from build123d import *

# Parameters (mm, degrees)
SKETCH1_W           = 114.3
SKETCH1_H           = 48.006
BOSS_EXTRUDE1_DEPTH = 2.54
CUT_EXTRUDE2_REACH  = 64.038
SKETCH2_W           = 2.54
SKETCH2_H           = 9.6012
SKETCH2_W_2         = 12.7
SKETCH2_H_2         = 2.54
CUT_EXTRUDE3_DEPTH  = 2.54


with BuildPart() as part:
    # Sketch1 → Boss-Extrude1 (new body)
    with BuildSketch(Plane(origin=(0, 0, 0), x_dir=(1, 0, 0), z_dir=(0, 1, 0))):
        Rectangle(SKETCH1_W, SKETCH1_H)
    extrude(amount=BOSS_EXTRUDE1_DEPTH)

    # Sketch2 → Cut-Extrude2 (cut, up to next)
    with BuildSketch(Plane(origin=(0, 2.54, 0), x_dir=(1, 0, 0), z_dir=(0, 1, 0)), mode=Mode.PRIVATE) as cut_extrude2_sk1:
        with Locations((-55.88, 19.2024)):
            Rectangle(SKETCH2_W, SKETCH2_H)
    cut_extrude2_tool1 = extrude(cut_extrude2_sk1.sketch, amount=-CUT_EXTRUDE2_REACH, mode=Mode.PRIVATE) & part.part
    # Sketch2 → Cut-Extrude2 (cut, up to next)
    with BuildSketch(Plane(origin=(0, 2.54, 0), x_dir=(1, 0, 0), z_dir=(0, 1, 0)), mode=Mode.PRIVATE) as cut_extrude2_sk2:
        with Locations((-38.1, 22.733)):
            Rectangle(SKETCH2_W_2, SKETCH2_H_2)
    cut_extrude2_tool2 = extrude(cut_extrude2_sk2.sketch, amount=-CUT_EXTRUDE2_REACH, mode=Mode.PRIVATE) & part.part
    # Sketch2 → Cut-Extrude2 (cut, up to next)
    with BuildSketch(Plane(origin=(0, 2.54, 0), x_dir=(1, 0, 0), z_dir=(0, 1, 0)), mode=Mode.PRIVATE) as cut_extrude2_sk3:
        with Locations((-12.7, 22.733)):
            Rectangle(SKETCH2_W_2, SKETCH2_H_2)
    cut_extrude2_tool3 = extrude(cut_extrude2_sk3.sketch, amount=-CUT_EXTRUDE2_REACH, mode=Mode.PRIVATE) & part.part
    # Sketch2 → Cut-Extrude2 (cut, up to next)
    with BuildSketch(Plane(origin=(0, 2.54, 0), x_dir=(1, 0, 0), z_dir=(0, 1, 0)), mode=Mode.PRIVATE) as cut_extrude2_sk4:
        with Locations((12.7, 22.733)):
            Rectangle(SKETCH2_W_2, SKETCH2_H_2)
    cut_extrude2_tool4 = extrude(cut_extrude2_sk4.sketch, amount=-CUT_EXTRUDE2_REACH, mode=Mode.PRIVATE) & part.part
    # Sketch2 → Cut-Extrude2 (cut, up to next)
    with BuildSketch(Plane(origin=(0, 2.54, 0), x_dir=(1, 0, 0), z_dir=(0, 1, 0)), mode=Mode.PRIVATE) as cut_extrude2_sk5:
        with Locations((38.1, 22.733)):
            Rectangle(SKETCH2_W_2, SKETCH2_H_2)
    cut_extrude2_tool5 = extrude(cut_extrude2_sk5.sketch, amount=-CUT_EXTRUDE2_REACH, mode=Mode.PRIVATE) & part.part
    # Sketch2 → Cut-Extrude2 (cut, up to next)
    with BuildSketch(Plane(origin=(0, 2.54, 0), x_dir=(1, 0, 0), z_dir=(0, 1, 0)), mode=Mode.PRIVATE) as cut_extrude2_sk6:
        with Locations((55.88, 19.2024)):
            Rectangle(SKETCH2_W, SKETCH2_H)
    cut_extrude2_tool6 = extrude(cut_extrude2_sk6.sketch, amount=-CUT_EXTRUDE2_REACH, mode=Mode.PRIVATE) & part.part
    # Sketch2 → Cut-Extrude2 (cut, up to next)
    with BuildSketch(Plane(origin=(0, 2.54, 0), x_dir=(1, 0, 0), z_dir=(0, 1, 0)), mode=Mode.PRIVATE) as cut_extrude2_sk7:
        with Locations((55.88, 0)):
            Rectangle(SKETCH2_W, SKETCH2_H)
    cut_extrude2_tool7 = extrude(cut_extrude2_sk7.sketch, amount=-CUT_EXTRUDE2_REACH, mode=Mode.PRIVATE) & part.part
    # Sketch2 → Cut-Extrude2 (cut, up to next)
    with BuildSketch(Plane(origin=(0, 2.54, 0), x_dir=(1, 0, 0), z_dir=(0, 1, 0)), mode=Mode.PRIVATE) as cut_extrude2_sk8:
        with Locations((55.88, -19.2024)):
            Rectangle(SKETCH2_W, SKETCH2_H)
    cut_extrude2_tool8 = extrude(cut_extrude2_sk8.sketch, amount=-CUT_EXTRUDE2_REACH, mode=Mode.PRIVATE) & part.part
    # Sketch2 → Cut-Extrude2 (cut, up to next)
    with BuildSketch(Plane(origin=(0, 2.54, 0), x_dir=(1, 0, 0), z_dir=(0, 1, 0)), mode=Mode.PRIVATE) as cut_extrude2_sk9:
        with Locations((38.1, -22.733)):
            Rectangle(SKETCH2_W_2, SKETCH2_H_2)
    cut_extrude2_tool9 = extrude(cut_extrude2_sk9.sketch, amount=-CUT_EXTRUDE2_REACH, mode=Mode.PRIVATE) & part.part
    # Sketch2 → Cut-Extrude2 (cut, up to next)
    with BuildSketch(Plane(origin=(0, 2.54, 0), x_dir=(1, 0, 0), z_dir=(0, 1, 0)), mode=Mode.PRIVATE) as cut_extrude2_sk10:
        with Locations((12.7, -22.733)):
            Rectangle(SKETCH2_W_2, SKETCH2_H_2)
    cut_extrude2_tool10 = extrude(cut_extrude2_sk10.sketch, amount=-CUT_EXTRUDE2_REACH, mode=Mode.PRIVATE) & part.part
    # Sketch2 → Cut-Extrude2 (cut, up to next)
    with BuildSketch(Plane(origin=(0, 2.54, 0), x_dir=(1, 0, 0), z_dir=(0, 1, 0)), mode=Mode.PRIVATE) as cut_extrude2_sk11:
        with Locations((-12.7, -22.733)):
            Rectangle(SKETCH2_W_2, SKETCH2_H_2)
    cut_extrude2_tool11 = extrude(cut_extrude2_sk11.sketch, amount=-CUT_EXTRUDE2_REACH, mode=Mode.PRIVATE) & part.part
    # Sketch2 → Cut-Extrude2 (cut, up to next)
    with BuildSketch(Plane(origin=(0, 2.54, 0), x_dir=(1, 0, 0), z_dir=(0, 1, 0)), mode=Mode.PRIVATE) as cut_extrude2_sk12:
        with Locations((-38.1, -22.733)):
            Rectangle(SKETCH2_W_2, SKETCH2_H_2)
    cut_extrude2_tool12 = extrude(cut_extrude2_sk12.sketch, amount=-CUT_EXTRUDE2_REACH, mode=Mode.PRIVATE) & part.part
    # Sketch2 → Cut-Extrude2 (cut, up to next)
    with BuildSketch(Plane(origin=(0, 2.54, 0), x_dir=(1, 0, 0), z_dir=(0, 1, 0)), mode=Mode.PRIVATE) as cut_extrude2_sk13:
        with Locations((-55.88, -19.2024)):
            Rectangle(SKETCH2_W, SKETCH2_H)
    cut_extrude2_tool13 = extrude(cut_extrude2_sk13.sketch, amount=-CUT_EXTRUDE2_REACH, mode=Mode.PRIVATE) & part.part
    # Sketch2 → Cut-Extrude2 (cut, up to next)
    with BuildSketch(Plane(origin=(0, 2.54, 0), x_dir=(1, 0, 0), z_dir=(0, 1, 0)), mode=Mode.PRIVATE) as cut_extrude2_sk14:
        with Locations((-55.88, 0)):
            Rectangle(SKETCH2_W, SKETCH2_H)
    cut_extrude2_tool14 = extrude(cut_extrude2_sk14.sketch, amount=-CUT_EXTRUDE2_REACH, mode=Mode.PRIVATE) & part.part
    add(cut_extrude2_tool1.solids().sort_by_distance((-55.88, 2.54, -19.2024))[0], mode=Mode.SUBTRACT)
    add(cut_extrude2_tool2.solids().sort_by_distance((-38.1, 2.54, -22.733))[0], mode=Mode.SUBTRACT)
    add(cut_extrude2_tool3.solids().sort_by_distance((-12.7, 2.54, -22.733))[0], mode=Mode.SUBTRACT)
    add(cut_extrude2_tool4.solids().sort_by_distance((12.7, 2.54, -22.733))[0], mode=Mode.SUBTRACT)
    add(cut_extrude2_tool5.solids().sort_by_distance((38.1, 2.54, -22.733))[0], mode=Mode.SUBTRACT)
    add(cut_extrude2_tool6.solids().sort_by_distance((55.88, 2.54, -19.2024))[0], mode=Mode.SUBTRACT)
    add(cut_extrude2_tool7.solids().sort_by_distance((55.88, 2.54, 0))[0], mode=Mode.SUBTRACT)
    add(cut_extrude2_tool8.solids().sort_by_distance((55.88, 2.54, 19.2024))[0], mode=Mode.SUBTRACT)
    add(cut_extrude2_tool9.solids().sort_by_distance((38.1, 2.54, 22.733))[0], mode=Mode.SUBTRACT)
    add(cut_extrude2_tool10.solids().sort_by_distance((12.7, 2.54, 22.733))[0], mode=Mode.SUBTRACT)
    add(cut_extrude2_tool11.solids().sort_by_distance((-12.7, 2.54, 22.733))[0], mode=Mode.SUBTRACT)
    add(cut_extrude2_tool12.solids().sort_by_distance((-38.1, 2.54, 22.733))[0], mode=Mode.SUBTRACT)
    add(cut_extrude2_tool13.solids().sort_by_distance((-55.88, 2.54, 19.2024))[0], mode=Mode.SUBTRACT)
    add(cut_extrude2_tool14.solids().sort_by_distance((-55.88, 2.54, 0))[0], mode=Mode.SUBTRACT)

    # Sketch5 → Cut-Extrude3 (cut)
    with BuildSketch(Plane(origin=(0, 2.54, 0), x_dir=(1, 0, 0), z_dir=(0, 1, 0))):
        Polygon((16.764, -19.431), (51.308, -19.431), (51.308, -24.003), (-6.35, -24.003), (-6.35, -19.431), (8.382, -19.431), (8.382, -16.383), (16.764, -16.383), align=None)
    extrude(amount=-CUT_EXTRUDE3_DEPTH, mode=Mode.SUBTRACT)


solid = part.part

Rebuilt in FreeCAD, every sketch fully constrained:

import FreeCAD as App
import Part
import Sketcher

V = App.Vector
Q = App.Units.Quantity

doc = App.newDocument("Part")
params = doc.addObject("Spreadsheet::Sheet", "Params")
for row, (alias, value) in enumerate([
    ("sketch1_width", "4.5 in"),
    ("sketch1_height", "1.89 in"),
    ("pad1_length", "0.1 in"),
    ("sketch2_width", "0.1 in"),
    ("sketch2_height", "0.378 in"),
    ("sketch3_width", "0.5 in"),
    ("sketch3_height", "0.1 in"),
    ("sketch4_width", "0.5 in"),
    ("sketch4_height", "0.1 in"),
    ("sketch5_width", "0.5 in"),
    ("sketch5_height", "0.1 in"),
    ("sketch6_width", "0.5 in"),
    ("sketch6_height", "0.1 in"),
    ("sketch7_width", "0.1 in"),
    ("sketch7_height", "0.378 in"),
    ("sketch8_width", "0.1 in"),
    ("sketch8_height", "0.378 in"),
    ("sketch9_width", "0.1 in"),
    ("sketch9_height", "0.378 in"),
    ("sketch10_width", "0.5 in"),
    ("sketch10_height", "0.1 in"),
    ("sketch11_width", "0.5 in"),
    ("sketch11_height", "0.1 in"),
    ("sketch12_width", "0.5 in"),
    ("sketch12_height", "0.1 in"),
    ("sketch13_width", "0.5 in"),
    ("sketch13_height", "0.1 in"),
    ("sketch14_width", "0.1 in"),
    ("sketch14_height", "0.378 in"),
    ("sketch15_width", "0.1 in"),
    ("sketch15_height", "0.378 in"),
    ("sketch16_width", "1.36 in"),
    ("sketch16_width2", "0.33 in"),
    ("sketch16_width3", "0.58 in"),
    ("sketch16_height", "0.12 in"),
    ("sketch16_height2", "0.18 in"),
    ("pocket15_length", "0.1 in"),
], start=1):
    params.set(f"A{row}", alias)
    params.set(f"B{row}", "=" + value)
    params.setAlias(f"B{row}", alias)

body = doc.addObject("PartDesign::Body", "Body")

# Sketch on XZ plane
sketch1 = body.newObject("Sketcher::SketchObject", "Sketch")
sketch1.AttachmentSupport = (doc.getObject("XZ_Plane"), [""])
sketch1.MapMode = "FlatFace"
sketch1.addGeometry(Part.LineSegment(V(-57, -24, 0), V(-57, 24, 0)), False)
sketch1.addGeometry(Part.LineSegment(V(-57, 24, 0), V(57, 24, 0)), False)
sketch1.addGeometry(Part.LineSegment(V(57, 24, 0), V(57, -24, 0)), False)
sketch1.addGeometry(Part.LineSegment(V(57, -24, 0), V(-57, -24, 0)), False)
sketch1.addConstraint(Sketcher.Constraint("Coincident", 0, 2, 1, 1))
sketch1.addConstraint(Sketcher.Constraint("Coincident", 1, 2, 2, 1))
sketch1.addConstraint(Sketcher.Constraint("Coincident", 2, 2, 3, 1))
sketch1.addConstraint(Sketcher.Constraint("Coincident", 3, 2, 0, 1))
sketch1.addConstraint(Sketcher.Constraint("Vertical", 0))
sketch1.addConstraint(Sketcher.Constraint("Horizontal", 1))
sketch1.addConstraint(Sketcher.Constraint("Vertical", 2))
sketch1.addConstraint(Sketcher.Constraint("Horizontal", 3))
sketch1.addConstraint(Sketcher.Constraint("Symmetric", 0, 2, 2, 2, -1, 1))
sketch1.addConstraint(Sketcher.Constraint("DistanceX", 1, 1, 1, 2, Q("4.5 in")))
sketch1.addConstraint(Sketcher.Constraint("DistanceY", 0, 1, 0, 2, Q("1.89 in")))
sketch1.setExpression("Constraints[9]", "Params.sketch1_width")
sketch1.setExpression("Constraints[10]", "Params.sketch1_height")
pad1 = body.newObject("PartDesign::Pad", "Pad")
pad1.Profile = sketch1
pad1.setExpression("Length", "Params.pad1_length")
pad1.Reversed = True

# Sketch on XZ plane
sketch2 = body.newObject("Sketcher::SketchObject", "Sketch001")
sketch2.AttachmentSupport = (doc.getObject("XZ_Plane"), [""])
sketch2.MapMode = "FlatFace"
sketch2.AttachmentOffset = App.Placement(V(0, 0, -0.1 * 25.4), App.Rotation())
sketch2.addGeometry(Part.LineSegment(V(-57.1, -24, 0), V(-57.1, -14.4, 0)), False)
sketch2.addGeometry(Part.LineSegment(V(-57.1, -14.4, 0), V(-54.6, -14.4, 0)), False)
sketch2.addGeometry(Part.LineSegment(V(-54.6, -14.4, 0), V(-54.6, -24, 0)), False)
sketch2.addGeometry(Part.LineSegment(V(-54.6, -24, 0), V(-57.1, -24, 0)), False)
sketch2.addConstraint(Sketcher.Constraint("Coincident", 0, 2, 1, 1))
sketch2.addConstraint(Sketcher.Constraint("Coincident", 1, 2, 2, 1))
sketch2.addConstraint(Sketcher.Constraint("Coincident", 2, 2, 3, 1))
sketch2.addConstraint(Sketcher.Constraint("Coincident", 3, 2, 0, 1))
sketch2.addConstraint(Sketcher.Constraint("Vertical", 0))
sketch2.addConstraint(Sketcher.Constraint("Horizontal", 1))
sketch2.addConstraint(Sketcher.Constraint("Vertical", 2))
sketch2.addConstraint(Sketcher.Constraint("Horizontal", 3))
sketch2.addConstraint(Sketcher.Constraint("DistanceX", 1, 1, 1, 2, Q("0.1 in")))
sketch2.addConstraint(Sketcher.Constraint("DistanceY", 0, 1, 0, 2, Q("0.378 in")))
sketch2.addConstraint(Sketcher.Constraint("DistanceX", 0, 2, -1, 1, Q("2.25 in")))
sketch2.addConstraint(Sketcher.Constraint("DistanceY", 0, 2, -1, 1, Q("0.567 in")))
sketch2.setExpression("Constraints[8]", "Params.sketch2_width")
sketch2.setExpression("Constraints[9]", "Params.sketch2_height")
pocket1 = body.newObject("PartDesign::Pocket", "Pocket")
pocket1.Profile = sketch2
pocket1.Type = "UpToFirst"
pocket1.Reversed = True

# Sketch on XZ plane
sketch3 = body.newObject("Sketcher::SketchObject", "Sketch002")
sketch3.AttachmentSupport = (doc.getObject("XZ_Plane"), [""])
sketch3.MapMode = "FlatFace"
sketch3.AttachmentOffset = App.Placement(V(0, 0, -0.1 * 25.4), App.Rotation())
sketch3.addGeometry(Part.LineSegment(V(-44.5, -24, 0), V(-44.5, -21.5, 0)), False)
sketch3.addGeometry(Part.LineSegment(V(-44.5, -21.5, 0), V(-31.8, -21.5, 0)), False)
sketch3.addGeometry(Part.LineSegment(V(-31.8, -21.5, 0), V(-31.8, -24, 0)), False)
sketch3.addGeometry(Part.LineSegment(V(-31.8, -24, 0), V(-44.5, -24, 0)), False)
sketch3.addConstraint(Sketcher.Constraint("Coincident", 0, 2, 1, 1))
sketch3.addConstraint(Sketcher.Constraint("Coincident", 1, 2, 2, 1))
sketch3.addConstraint(Sketcher.Constraint("Coincident", 2, 2, 3, 1))
sketch3.addConstraint(Sketcher.Constraint("Coincident", 3, 2, 0, 1))
sketch3.addConstraint(Sketcher.Constraint("Vertical", 0))
sketch3.addConstraint(Sketcher.Constraint("Horizontal", 1))
sketch3.addConstraint(Sketcher.Constraint("Vertical", 2))
sketch3.addConstraint(Sketcher.Constraint("Horizontal", 3))
sketch3.addConstraint(Sketcher.Constraint("DistanceX", 1, 1, 1, 2, Q("0.5 in")))
sketch3.addConstraint(Sketcher.Constraint("DistanceY", 0, 1, 0, 2, Q("0.1 in")))
sketch3.addConstraint(Sketcher.Constraint("DistanceX", 0, 2, -1, 1, Q("1.75 in")))
sketch3.addConstraint(Sketcher.Constraint("DistanceY", 0, 2, -1, 1, Q("0.845 in")))
sketch3.setExpression("Constraints[8]", "Params.sketch3_width")
sketch3.setExpression("Constraints[9]", "Params.sketch3_height")
pocket2 = body.newObject("PartDesign::Pocket", "Pocket001")
pocket2.Profile = sketch3
pocket2.Type = "UpToFirst"
pocket2.Reversed = True

# Sketch on XZ plane
sketch4 = body.newObject("Sketcher::SketchObject", "Sketch003")
sketch4.AttachmentSupport = (doc.getObject("XZ_Plane"), [""])
sketch4.MapMode = "FlatFace"
sketch4.AttachmentOffset = App.Placement(V(0, 0, -0.1 * 25.4), App.Rotation())
sketch4.addGeometry(Part.LineSegment(V(-19.1, -24, 0), V(-19.1, -21.5, 0)), False)
sketch4.addGeometry(Part.LineSegment(V(-19.1, -21.5, 0), V(-6.3, -21.5, 0)), False)
sketch4.addGeometry(Part.LineSegment(V(-6.3, -21.5, 0), V(-6.3, -24, 0)), False)
sketch4.addGeometry(Part.LineSegment(V(-6.3, -24, 0), V(-19.1, -24, 0)), False)
sketch4.addConstraint(Sketcher.Constraint("Coincident", 0, 2, 1, 1))
sketch4.addConstraint(Sketcher.Constraint("Coincident", 1, 2, 2, 1))
sketch4.addConstraint(Sketcher.Constraint("Coincident", 2, 2, 3, 1))
sketch4.addConstraint(Sketcher.Constraint("Coincident", 3, 2, 0, 1))
sketch4.addConstraint(Sketcher.Constraint("Vertical", 0))
sketch4.addConstraint(Sketcher.Constraint("Horizontal", 1))
sketch4.addConstraint(Sketcher.Constraint("Vertical", 2))
sketch4.addConstraint(Sketcher.Constraint("Horizontal", 3))
sketch4.addConstraint(Sketcher.Constraint("DistanceX", 1, 1, 1, 2, Q("0.5 in")))
sketch4.addConstraint(Sketcher.Constraint("DistanceY", 0, 1, 0, 2, Q("0.1 in")))
sketch4.addConstraint(Sketcher.Constraint("DistanceX", 0, 2, -1, 1, Q("0.75 in")))
sketch4.addConstraint(Sketcher.Constraint("DistanceY", 0, 2, -1, 1, Q("0.845 in")))
sketch4.setExpression("Constraints[8]", "Params.sketch4_width")
sketch4.setExpression("Constraints[9]", "Params.sketch4_height")
pocket3 = body.newObject("PartDesign::Pocket", "Pocket002")
pocket3.Profile = sketch4
pocket3.Type = "UpToFirst"
pocket3.Reversed = True

# Sketch on XZ plane
sketch5 = body.newObject("Sketcher::SketchObject", "Sketch004")
sketch5.AttachmentSupport = (doc.getObject("XZ_Plane"), [""])
sketch5.MapMode = "FlatFace"
sketch5.AttachmentOffset = App.Placement(V(0, 0, -0.1 * 25.4), App.Rotation())
sketch5.addGeometry(Part.LineSegment(V(6.3, -24, 0), V(6.3, -21.5, 0)), False)
sketch5.addGeometry(Part.LineSegment(V(6.3, -21.5, 0), V(19.1, -21.5, 0)), False)
sketch5.addGeometry(Part.LineSegment(V(19.1, -21.5, 0), V(19.1, -24, 0)), False)
sketch5.addGeometry(Part.LineSegment(V(19.1, -24, 0), V(6.3, -24, 0)), False)
sketch5.addConstraint(Sketcher.Constraint("Coincident", 0, 2, 1, 1))
sketch5.addConstraint(Sketcher.Constraint("Coincident", 1, 2, 2, 1))
sketch5.addConstraint(Sketcher.Constraint("Coincident", 2, 2, 3, 1))
sketch5.addConstraint(Sketcher.Constraint("Coincident", 3, 2, 0, 1))
sketch5.addConstraint(Sketcher.Constraint("Vertical", 0))
sketch5.addConstraint(Sketcher.Constraint("Horizontal", 1))
sketch5.addConstraint(Sketcher.Constraint("Vertical", 2))
sketch5.addConstraint(Sketcher.Constraint("Horizontal", 3))
sketch5.addConstraint(Sketcher.Constraint("DistanceX", 1, 1, 1, 2, Q("0.5 in")))
sketch5.addConstraint(Sketcher.Constraint("DistanceY", 0, 1, 0, 2, Q("0.1 in")))
sketch5.addConstraint(Sketcher.Constraint("DistanceX", -1, 1, 0, 2, Q("0.25 in")))
sketch5.addConstraint(Sketcher.Constraint("DistanceY", 0, 2, -1, 1, Q("0.845 in")))
sketch5.setExpression("Constraints[8]", "Params.sketch5_width")
sketch5.setExpression("Constraints[9]", "Params.sketch5_height")
pocket4 = body.newObject("PartDesign::Pocket", "Pocket003")
pocket4.Profile = sketch5
pocket4.Type = "UpToFirst"
pocket4.Reversed = True

# Sketch on XZ plane
sketch6 = body.newObject("Sketcher::SketchObject", "Sketch005")
sketch6.AttachmentSupport = (doc.getObject("XZ_Plane"), [""])
sketch6.MapMode = "FlatFace"
sketch6.AttachmentOffset = App.Placement(V(0, 0, -0.1 * 25.4), App.Rotation())
sketch6.addGeometry(Part.LineSegment(V(31.8, -24, 0), V(31.8, -21.5, 0)), False)
sketch6.addGeometry(Part.LineSegment(V(31.8, -21.5, 0), V(44.5, -21.5, 0)), False)
sketch6.addGeometry(Part.LineSegment(V(44.5, -21.5, 0), V(44.5, -24, 0)), False)
sketch6.addGeometry(Part.LineSegment(V(44.5, -24, 0), V(31.8, -24, 0)), False)
sketch6.addConstraint(Sketcher.Constraint("Coincident", 0, 2, 1, 1))
sketch6.addConstraint(Sketcher.Constraint("Coincident", 1, 2, 2, 1))
sketch6.addConstraint(Sketcher.Constraint("Coincident", 2, 2, 3, 1))
sketch6.addConstraint(Sketcher.Constraint("Coincident", 3, 2, 0, 1))
sketch6.addConstraint(Sketcher.Constraint("Vertical", 0))
sketch6.addConstraint(Sketcher.Constraint("Horizontal", 1))
sketch6.addConstraint(Sketcher.Constraint("Vertical", 2))
sketch6.addConstraint(Sketcher.Constraint("Horizontal", 3))
sketch6.addConstraint(Sketcher.Constraint("DistanceX", 1, 1, 1, 2, Q("0.5 in")))
sketch6.addConstraint(Sketcher.Constraint("DistanceY", 0, 1, 0, 2, Q("0.1 in")))
sketch6.addConstraint(Sketcher.Constraint("DistanceX", -1, 1, 0, 2, Q("1.25 in")))
sketch6.addConstraint(Sketcher.Constraint("DistanceY", 0, 2, -1, 1, Q("0.845 in")))
sketch6.setExpression("Constraints[8]", "Params.sketch6_width")
sketch6.setExpression("Constraints[9]", "Params.sketch6_height")
pocket5 = body.newObject("PartDesign::Pocket", "Pocket004")
pocket5.Profile = sketch6
pocket5.Type = "UpToFirst"
pocket5.Reversed = True

# Sketch on XZ plane
sketch7 = body.newObject("Sketcher::SketchObject", "Sketch006")
sketch7.AttachmentSupport = (doc.getObject("XZ_Plane"), [""])
sketch7.MapMode = "FlatFace"
sketch7.AttachmentOffset = App.Placement(V(0, 0, -0.1 * 25.4), App.Rotation())
sketch7.addGeometry(Part.LineSegment(V(54.6, -24, 0), V(54.6, -14.4, 0)), False)
sketch7.addGeometry(Part.LineSegment(V(54.6, -14.4, 0), V(57.1, -14.4, 0)), False)
sketch7.addGeometry(Part.LineSegment(V(57.1, -14.4, 0), V(57.1, -24, 0)), False)
sketch7.addGeometry(Part.LineSegment(V(57.1, -24, 0), V(54.6, -24, 0)), False)
sketch7.addConstraint(Sketcher.Constraint("Coincident", 0, 2, 1, 1))
sketch7.addConstraint(Sketcher.Constraint("Coincident", 1, 2, 2, 1))
sketch7.addConstraint(Sketcher.Constraint("Coincident", 2, 2, 3, 1))
sketch7.addConstraint(Sketcher.Constraint("Coincident", 3, 2, 0, 1))
sketch7.addConstraint(Sketcher.Constraint("Vertical", 0))
sketch7.addConstraint(Sketcher.Constraint("Horizontal", 1))
sketch7.addConstraint(Sketcher.Constraint("Vertical", 2))
sketch7.addConstraint(Sketcher.Constraint("Horizontal", 3))
sketch7.addConstraint(Sketcher.Constraint("DistanceX", 1, 1, 1, 2, Q("0.1 in")))
sketch7.addConstraint(Sketcher.Constraint("DistanceY", 0, 1, 0, 2, Q("0.378 in")))
sketch7.addConstraint(Sketcher.Constraint("DistanceX", -1, 1, 0, 2, Q("2.15 in")))
sketch7.addConstraint(Sketcher.Constraint("DistanceY", 0, 2, -1, 1, Q("0.567 in")))
sketch7.setExpression("Constraints[8]", "Params.sketch7_width")
sketch7.setExpression("Constraints[9]", "Params.sketch7_height")
pocket6 = body.newObject("PartDesign::Pocket", "Pocket005")
pocket6.Profile = sketch7
pocket6.Type = "UpToFirst"
pocket6.Reversed = True

# Sketch on XZ plane
sketch8 = body.newObject("Sketcher::SketchObject", "Sketch007")
sketch8.AttachmentSupport = (doc.getObject("XZ_Plane"), [""])
sketch8.MapMode = "FlatFace"
sketch8.AttachmentOffset = App.Placement(V(0, 0, -0.1 * 25.4), App.Rotation())
sketch8.addGeometry(Part.LineSegment(V(54.6, -4.8, 0), V(54.6, 4.8, 0)), False)
sketch8.addGeometry(Part.LineSegment(V(54.6, 4.8, 0), V(57.1, 4.8, 0)), False)
sketch8.addGeometry(Part.LineSegment(V(57.1, 4.8, 0), V(57.1, -4.8, 0)), False)
sketch8.addGeometry(Part.LineSegment(V(57.1, -4.8, 0), V(54.6, -4.8, 0)), False)
sketch8.addConstraint(Sketcher.Constraint("Coincident", 0, 2, 1, 1))
sketch8.addConstraint(Sketcher.Constraint("Coincident", 1, 2, 2, 1))
sketch8.addConstraint(Sketcher.Constraint("Coincident", 2, 2, 3, 1))
sketch8.addConstraint(Sketcher.Constraint("Coincident", 3, 2, 0, 1))
sketch8.addConstraint(Sketcher.Constraint("Vertical", 0))
sketch8.addConstraint(Sketcher.Constraint("Horizontal", 1))
sketch8.addConstraint(Sketcher.Constraint("Vertical", 2))
sketch8.addConstraint(Sketcher.Constraint("Horizontal", 3))
sketch8.addConstraint(Sketcher.Constraint("DistanceX", 1, 1, 1, 2, Q("0.1 in")))
sketch8.addConstraint(Sketcher.Constraint("DistanceY", 0, 1, 0, 2, Q("0.378 in")))
sketch8.addConstraint(Sketcher.Constraint("DistanceX", -1, 1, 0, 2, Q("2.15 in")))
sketch8.addConstraint(Sketcher.Constraint("DistanceY", -1, 1, 0, 2, Q("0.189 in")))
sketch8.setExpression("Constraints[8]", "Params.sketch8_width")
sketch8.setExpression("Constraints[9]", "Params.sketch8_height")
pocket7 = body.newObject("PartDesign::Pocket", "Pocket006")
pocket7.Profile = sketch8
pocket7.Type = "UpToFirst"
pocket7.Reversed = True

# Sketch on XZ plane
sketch9 = body.newObject("Sketcher::SketchObject", "Sketch008")
sketch9.AttachmentSupport = (doc.getObject("XZ_Plane"), [""])
sketch9.MapMode = "FlatFace"
sketch9.AttachmentOffset = App.Placement(V(0, 0, -0.1 * 25.4), App.Rotation())
sketch9.addGeometry(Part.LineSegment(V(54.6, 14.4, 0), V(54.6, 24, 0)), False)
sketch9.addGeometry(Part.LineSegment(V(54.6, 24, 0), V(57.1, 24, 0)), False)
sketch9.addGeometry(Part.LineSegment(V(57.1, 24, 0), V(57.1, 14.4, 0)), False)
sketch9.addGeometry(Part.LineSegment(V(57.1, 14.4, 0), V(54.6, 14.4, 0)), False)
sketch9.addConstraint(Sketcher.Constraint("Coincident", 0, 2, 1, 1))
sketch9.addConstraint(Sketcher.Constraint("Coincident", 1, 2, 2, 1))
sketch9.addConstraint(Sketcher.Constraint("Coincident", 2, 2, 3, 1))
sketch9.addConstraint(Sketcher.Constraint("Coincident", 3, 2, 0, 1))
sketch9.addConstraint(Sketcher.Constraint("Vertical", 0))
sketch9.addConstraint(Sketcher.Constraint("Horizontal", 1))
sketch9.addConstraint(Sketcher.Constraint("Vertical", 2))
sketch9.addConstraint(Sketcher.Constraint("Horizontal", 3))
sketch9.addConstraint(Sketcher.Constraint("DistanceX", 1, 1, 1, 2, Q("0.1 in")))
sketch9.addConstraint(Sketcher.Constraint("DistanceY", 0, 1, 0, 2, Q("0.378 in")))
sketch9.addConstraint(Sketcher.Constraint("DistanceX", -1, 1, 0, 2, Q("2.15 in")))
sketch9.addConstraint(Sketcher.Constraint("DistanceY", -1, 1, 0, 2, Q("0.945 in")))
sketch9.setExpression("Constraints[8]", "Params.sketch9_width")
sketch9.setExpression("Constraints[9]", "Params.sketch9_height")
pocket8 = body.newObject("PartDesign::Pocket", "Pocket007")
pocket8.Profile = sketch9
pocket8.Type = "UpToFirst"
pocket8.Reversed = True

# Sketch on XZ plane
sketch10 = body.newObject("Sketcher::SketchObject", "Sketch009")
sketch10.AttachmentSupport = (doc.getObject("XZ_Plane"), [""])
sketch10.MapMode = "FlatFace"
sketch10.AttachmentOffset = App.Placement(V(0, 0, -0.1 * 25.4), App.Rotation())
sketch10.addGeometry(Part.LineSegment(V(31.8, 21.5, 0), V(31.8, 24, 0)), False)
sketch10.addGeometry(Part.LineSegment(V(31.8, 24, 0), V(44.5, 24, 0)), False)
sketch10.addGeometry(Part.LineSegment(V(44.5, 24, 0), V(44.5, 21.5, 0)), False)
sketch10.addGeometry(Part.LineSegment(V(44.5, 21.5, 0), V(31.8, 21.5, 0)), False)
sketch10.addConstraint(Sketcher.Constraint("Coincident", 0, 2, 1, 1))
sketch10.addConstraint(Sketcher.Constraint("Coincident", 1, 2, 2, 1))
sketch10.addConstraint(Sketcher.Constraint("Coincident", 2, 2, 3, 1))
sketch10.addConstraint(Sketcher.Constraint("Coincident", 3, 2, 0, 1))
sketch10.addConstraint(Sketcher.Constraint("Vertical", 0))
sketch10.addConstraint(Sketcher.Constraint("Horizontal", 1))
sketch10.addConstraint(Sketcher.Constraint("Vertical", 2))
sketch10.addConstraint(Sketcher.Constraint("Horizontal", 3))
sketch10.addConstraint(Sketcher.Constraint("DistanceX", 1, 1, 1, 2, Q("0.5 in")))
sketch10.addConstraint(Sketcher.Constraint("DistanceY", 0, 1, 0, 2, Q("0.1 in")))
sketch10.addConstraint(Sketcher.Constraint("DistanceX", -1, 1, 0, 2, Q("1.25 in")))
sketch10.addConstraint(Sketcher.Constraint("DistanceY", -1, 1, 0, 2, Q("0.945 in")))
sketch10.setExpression("Constraints[8]", "Params.sketch10_width")
sketch10.setExpression("Constraints[9]", "Params.sketch10_height")
pocket9 = body.newObject("PartDesign::Pocket", "Pocket008")
pocket9.Profile = sketch10
pocket9.Type = "UpToFirst"
pocket9.Reversed = True

# Sketch on XZ plane
sketch11 = body.newObject("Sketcher::SketchObject", "Sketch010")
sketch11.AttachmentSupport = (doc.getObject("XZ_Plane"), [""])
sketch11.MapMode = "FlatFace"
sketch11.AttachmentOffset = App.Placement(V(0, 0, -0.1 * 25.4), App.Rotation())
sketch11.addGeometry(Part.LineSegment(V(6.3, 21.5, 0), V(6.3, 24, 0)), False)
sketch11.addGeometry(Part.LineSegment(V(6.3, 24, 0), V(19.1, 24, 0)), False)
sketch11.addGeometry(Part.LineSegment(V(19.1, 24, 0), V(19.1, 21.5, 0)), False)
sketch11.addGeometry(Part.LineSegment(V(19.1, 21.5, 0), V(6.3, 21.5, 0)), False)
sketch11.addConstraint(Sketcher.Constraint("Coincident", 0, 2, 1, 1))
sketch11.addConstraint(Sketcher.Constraint("Coincident", 1, 2, 2, 1))
sketch11.addConstraint(Sketcher.Constraint("Coincident", 2, 2, 3, 1))
sketch11.addConstraint(Sketcher.Constraint("Coincident", 3, 2, 0, 1))
sketch11.addConstraint(Sketcher.Constraint("Vertical", 0))
sketch11.addConstraint(Sketcher.Constraint("Horizontal", 1))
sketch11.addConstraint(Sketcher.Constraint("Vertical", 2))
sketch11.addConstraint(Sketcher.Constraint("Horizontal", 3))
sketch11.addConstraint(Sketcher.Constraint("DistanceX", 1, 1, 1, 2, Q("0.5 in")))
sketch11.addConstraint(Sketcher.Constraint("DistanceY", 0, 1, 0, 2, Q("0.1 in")))
sketch11.addConstraint(Sketcher.Constraint("DistanceX", -1, 1, 0, 2, Q("0.25 in")))
sketch11.addConstraint(Sketcher.Constraint("DistanceY", -1, 1, 0, 2, Q("0.945 in")))
sketch11.setExpression("Constraints[8]", "Params.sketch11_width")
sketch11.setExpression("Constraints[9]", "Params.sketch11_height")
pocket10 = body.newObject("PartDesign::Pocket", "Pocket009")
pocket10.Profile = sketch11
pocket10.Type = "UpToFirst"
pocket10.Reversed = True

# Sketch on XZ plane
sketch12 = body.newObject("Sketcher::SketchObject", "Sketch011")
sketch12.AttachmentSupport = (doc.getObject("XZ_Plane"), [""])
sketch12.MapMode = "FlatFace"
sketch12.AttachmentOffset = App.Placement(V(0, 0, -0.1 * 25.4), App.Rotation())
sketch12.addGeometry(Part.LineSegment(V(-19.1, 21.5, 0), V(-19.1, 24, 0)), False)
sketch12.addGeometry(Part.LineSegment(V(-19.1, 24, 0), V(-6.3, 24, 0)), False)
sketch12.addGeometry(Part.LineSegment(V(-6.3, 24, 0), V(-6.3, 21.5, 0)), False)
sketch12.addGeometry(Part.LineSegment(V(-6.3, 21.5, 0), V(-19.1, 21.5, 0)), False)
sketch12.addConstraint(Sketcher.Constraint("Coincident", 0, 2, 1, 1))
sketch12.addConstraint(Sketcher.Constraint("Coincident", 1, 2, 2, 1))
sketch12.addConstraint(Sketcher.Constraint("Coincident", 2, 2, 3, 1))
sketch12.addConstraint(Sketcher.Constraint("Coincident", 3, 2, 0, 1))
sketch12.addConstraint(Sketcher.Constraint("Vertical", 0))
sketch12.addConstraint(Sketcher.Constraint("Horizontal", 1))
sketch12.addConstraint(Sketcher.Constraint("Vertical", 2))
sketch12.addConstraint(Sketcher.Constraint("Horizontal", 3))
sketch12.addConstraint(Sketcher.Constraint("DistanceX", 1, 1, 1, 2, Q("0.5 in")))
sketch12.addConstraint(Sketcher.Constraint("DistanceY", 0, 1, 0, 2, Q("0.1 in")))
sketch12.addConstraint(Sketcher.Constraint("DistanceX", 0, 2, -1, 1, Q("0.75 in")))
sketch12.addConstraint(Sketcher.Constraint("DistanceY", -1, 1, 0, 2, Q("0.945 in")))
sketch12.setExpression("Constraints[8]", "Params.sketch12_width")
sketch12.setExpression("Constraints[9]", "Params.sketch12_height")
pocket11 = body.newObject("PartDesign::Pocket", "Pocket010")
pocket11.Profile = sketch12
pocket11.Type = "UpToFirst"
pocket11.Reversed = True

# Sketch on XZ plane
sketch13 = body.newObject("Sketcher::SketchObject", "Sketch012")
sketch13.AttachmentSupport = (doc.getObject("XZ_Plane"), [""])
sketch13.MapMode = "FlatFace"
sketch13.AttachmentOffset = App.Placement(V(0, 0, -0.1 * 25.4), App.Rotation())
sketch13.addGeometry(Part.LineSegment(V(-44.5, 21.5, 0), V(-44.5, 24, 0)), False)
sketch13.addGeometry(Part.LineSegment(V(-44.5, 24, 0), V(-31.8, 24, 0)), False)
sketch13.addGeometry(Part.LineSegment(V(-31.8, 24, 0), V(-31.8, 21.5, 0)), False)
sketch13.addGeometry(Part.LineSegment(V(-31.8, 21.5, 0), V(-44.5, 21.5, 0)), False)
sketch13.addConstraint(Sketcher.Constraint("Coincident", 0, 2, 1, 1))
sketch13.addConstraint(Sketcher.Constraint("Coincident", 1, 2, 2, 1))
sketch13.addConstraint(Sketcher.Constraint("Coincident", 2, 2, 3, 1))
sketch13.addConstraint(Sketcher.Constraint("Coincident", 3, 2, 0, 1))
sketch13.addConstraint(Sketcher.Constraint("Vertical", 0))
sketch13.addConstraint(Sketcher.Constraint("Horizontal", 1))
sketch13.addConstraint(Sketcher.Constraint("Vertical", 2))
sketch13.addConstraint(Sketcher.Constraint("Horizontal", 3))
sketch13.addConstraint(Sketcher.Constraint("DistanceX", 1, 1, 1, 2, Q("0.5 in")))
sketch13.addConstraint(Sketcher.Constraint("DistanceY", 0, 1, 0, 2, Q("0.1 in")))
sketch13.addConstraint(Sketcher.Constraint("DistanceX", 0, 2, -1, 1, Q("1.75 in")))
sketch13.addConstraint(Sketcher.Constraint("DistanceY", -1, 1, 0, 2, Q("0.945 in")))
sketch13.setExpression("Constraints[8]", "Params.sketch13_width")
sketch13.setExpression("Constraints[9]", "Params.sketch13_height")
pocket12 = body.newObject("PartDesign::Pocket", "Pocket011")
pocket12.Profile = sketch13
pocket12.Type = "UpToFirst"
pocket12.Reversed = True

# Sketch on XZ plane
sketch14 = body.newObject("Sketcher::SketchObject", "Sketch013")
sketch14.AttachmentSupport = (doc.getObject("XZ_Plane"), [""])
sketch14.MapMode = "FlatFace"
sketch14.AttachmentOffset = App.Placement(V(0, 0, -0.1 * 25.4), App.Rotation())
sketch14.addGeometry(Part.LineSegment(V(-57.1, 14.4, 0), V(-57.1, 24, 0)), False)
sketch14.addGeometry(Part.LineSegment(V(-57.1, 24, 0), V(-54.6, 24, 0)), False)
sketch14.addGeometry(Part.LineSegment(V(-54.6, 24, 0), V(-54.6, 14.4, 0)), False)
sketch14.addGeometry(Part.LineSegment(V(-54.6, 14.4, 0), V(-57.1, 14.4, 0)), False)
sketch14.addConstraint(Sketcher.Constraint("Coincident", 0, 2, 1, 1))
sketch14.addConstraint(Sketcher.Constraint("Coincident", 1, 2, 2, 1))
sketch14.addConstraint(Sketcher.Constraint("Coincident", 2, 2, 3, 1))
sketch14.addConstraint(Sketcher.Constraint("Coincident", 3, 2, 0, 1))
sketch14.addConstraint(Sketcher.Constraint("Vertical", 0))
sketch14.addConstraint(Sketcher.Constraint("Horizontal", 1))
sketch14.addConstraint(Sketcher.Constraint("Vertical", 2))
sketch14.addConstraint(Sketcher.Constraint("Horizontal", 3))
sketch14.addConstraint(Sketcher.Constraint("DistanceX", 1, 1, 1, 2, Q("0.1 in")))
sketch14.addConstraint(Sketcher.Constraint("DistanceY", 0, 1, 0, 2, Q("0.378 in")))
sketch14.addConstraint(Sketcher.Constraint("DistanceX", 0, 2, -1, 1, Q("2.25 in")))
sketch14.addConstraint(Sketcher.Constraint("DistanceY", -1, 1, 0, 2, Q("0.945 in")))
sketch14.setExpression("Constraints[8]", "Params.sketch14_width")
sketch14.setExpression("Constraints[9]", "Params.sketch14_height")
pocket13 = body.newObject("PartDesign::Pocket", "Pocket012")
pocket13.Profile = sketch14
pocket13.Type = "UpToFirst"
pocket13.Reversed = True

# Sketch on XZ plane
sketch15 = body.newObject("Sketcher::SketchObject", "Sketch014")
sketch15.AttachmentSupport = (doc.getObject("XZ_Plane"), [""])
sketch15.MapMode = "FlatFace"
sketch15.AttachmentOffset = App.Placement(V(0, 0, -0.1 * 25.4), App.Rotation())
sketch15.addGeometry(Part.LineSegment(V(-57.1, -4.8, 0), V(-57.1, 4.8, 0)), False)
sketch15.addGeometry(Part.LineSegment(V(-57.1, 4.8, 0), V(-54.6, 4.8, 0)), False)
sketch15.addGeometry(Part.LineSegment(V(-54.6, 4.8, 0), V(-54.6, -4.8, 0)), False)
sketch15.addGeometry(Part.LineSegment(V(-54.6, -4.8, 0), V(-57.1, -4.8, 0)), False)
sketch15.addConstraint(Sketcher.Constraint("Coincident", 0, 2, 1, 1))
sketch15.addConstraint(Sketcher.Constraint("Coincident", 1, 2, 2, 1))
sketch15.addConstraint(Sketcher.Constraint("Coincident", 2, 2, 3, 1))
sketch15.addConstraint(Sketcher.Constraint("Coincident", 3, 2, 0, 1))
sketch15.addConstraint(Sketcher.Constraint("Vertical", 0))
sketch15.addConstraint(Sketcher.Constraint("Horizontal", 1))
sketch15.addConstraint(Sketcher.Constraint("Vertical", 2))
sketch15.addConstraint(Sketcher.Constraint("Horizontal", 3))
sketch15.addConstraint(Sketcher.Constraint("DistanceX", 1, 1, 1, 2, Q("0.1 in")))
sketch15.addConstraint(Sketcher.Constraint("DistanceY", 0, 1, 0, 2, Q("0.378 in")))
sketch15.addConstraint(Sketcher.Constraint("DistanceX", 0, 2, -1, 1, Q("2.25 in")))
sketch15.addConstraint(Sketcher.Constraint("DistanceY", -1, 1, 0, 2, Q("0.189 in")))
sketch15.setExpression("Constraints[8]", "Params.sketch15_width")
sketch15.setExpression("Constraints[9]", "Params.sketch15_height")
pocket14 = body.newObject("PartDesign::Pocket", "Pocket013")
pocket14.Profile = sketch15
pocket14.Type = "UpToFirst"
pocket14.Reversed = True

# Sketch on XZ plane
sketch16 = body.newObject("Sketcher::SketchObject", "Sketch015")
sketch16.AttachmentSupport = (doc.getObject("XZ_Plane"), [""])
sketch16.MapMode = "FlatFace"
sketch16.AttachmentOffset = App.Placement(V(0, 0, -0.1 * 25.4), App.Rotation())
sketch16.addGeometry(Part.LineSegment(V(51.3, 19.4, 0), V(16.8, 19.4, 0)), False)
sketch16.addGeometry(Part.LineSegment(V(16.8, 19.4, 0), V(16.8, 16.4, 0)), False)
sketch16.addGeometry(Part.LineSegment(V(16.8, 16.4, 0), V(8.4, 16.4, 0)), False)
sketch16.addGeometry(Part.LineSegment(V(8.4, 16.4, 0), V(8.4, 19.4, 0)), False)
sketch16.addGeometry(Part.LineSegment(V(8.4, 19.4, 0), V(-6.3, 19.4, 0)), False)
sketch16.addGeometry(Part.LineSegment(V(-6.3, 19.4, 0), V(-6.3, 24, 0)), False)
sketch16.addGeometry(Part.LineSegment(V(-6.3, 24, 0), V(51.3, 24, 0)), False)
sketch16.addGeometry(Part.LineSegment(V(51.3, 24, 0), V(51.3, 19.4, 0)), False)
sketch16.addConstraint(Sketcher.Constraint("Coincident", 0, 2, 1, 1))
sketch16.addConstraint(Sketcher.Constraint("Coincident", 1, 2, 2, 1))
sketch16.addConstraint(Sketcher.Constraint("Coincident", 2, 2, 3, 1))
sketch16.addConstraint(Sketcher.Constraint("Coincident", 3, 2, 4, 1))
sketch16.addConstraint(Sketcher.Constraint("Coincident", 4, 2, 5, 1))
sketch16.addConstraint(Sketcher.Constraint("Coincident", 5, 2, 6, 1))
sketch16.addConstraint(Sketcher.Constraint("Coincident", 6, 2, 7, 1))
sketch16.addConstraint(Sketcher.Constraint("Coincident", 7, 2, 0, 1))
sketch16.addConstraint(Sketcher.Constraint("Horizontal", 0))
sketch16.addConstraint(Sketcher.Constraint("Vertical", 1))
sketch16.addConstraint(Sketcher.Constraint("Horizontal", 2))
sketch16.addConstraint(Sketcher.Constraint("Vertical", 3))
sketch16.addConstraint(Sketcher.Constraint("Horizontal", 4))
sketch16.addConstraint(Sketcher.Constraint("Vertical", 5))
sketch16.addConstraint(Sketcher.Constraint("Horizontal", 6))
sketch16.addConstraint(Sketcher.Constraint("Vertical", 7))
sketch16.addConstraint(Sketcher.Constraint("Horizontal", 0, 2, 3, 2))
sketch16.addConstraint(Sketcher.Constraint("DistanceX", 0, 2, 0, 1, Q("1.36 in")))
sketch16.addConstraint(Sketcher.Constraint("DistanceX", 2, 2, 2, 1, Q("0.33 in")))
sketch16.addConstraint(Sketcher.Constraint("DistanceX", 4, 2, 4, 1, Q("0.58 in")))
sketch16.addConstraint(Sketcher.Constraint("DistanceY", 1, 2, 1, 1, Q("0.12 in")))
sketch16.addConstraint(Sketcher.Constraint("DistanceY", 5, 1, 5, 2, Q("0.18 in")))
sketch16.addConstraint(Sketcher.Constraint("DistanceX", -1, 1, 0, 2, Q("0.66 in")))
sketch16.addConstraint(Sketcher.Constraint("DistanceY", -1, 1, 0, 2, Q("0.765 in")))
sketch16.setExpression("Constraints[17]", "Params.sketch16_width")
sketch16.setExpression("Constraints[18]", "Params.sketch16_width2")
sketch16.setExpression("Constraints[19]", "Params.sketch16_width3")
sketch16.setExpression("Constraints[20]", "Params.sketch16_height")
sketch16.setExpression("Constraints[21]", "Params.sketch16_height2")
pocket15 = body.newObject("PartDesign::Pocket", "Pocket014")
pocket15.Profile = sketch16
pocket15.setExpression("Length", "Params.pocket15_length")
pocket15.Reversed = True

doc.recompute()
